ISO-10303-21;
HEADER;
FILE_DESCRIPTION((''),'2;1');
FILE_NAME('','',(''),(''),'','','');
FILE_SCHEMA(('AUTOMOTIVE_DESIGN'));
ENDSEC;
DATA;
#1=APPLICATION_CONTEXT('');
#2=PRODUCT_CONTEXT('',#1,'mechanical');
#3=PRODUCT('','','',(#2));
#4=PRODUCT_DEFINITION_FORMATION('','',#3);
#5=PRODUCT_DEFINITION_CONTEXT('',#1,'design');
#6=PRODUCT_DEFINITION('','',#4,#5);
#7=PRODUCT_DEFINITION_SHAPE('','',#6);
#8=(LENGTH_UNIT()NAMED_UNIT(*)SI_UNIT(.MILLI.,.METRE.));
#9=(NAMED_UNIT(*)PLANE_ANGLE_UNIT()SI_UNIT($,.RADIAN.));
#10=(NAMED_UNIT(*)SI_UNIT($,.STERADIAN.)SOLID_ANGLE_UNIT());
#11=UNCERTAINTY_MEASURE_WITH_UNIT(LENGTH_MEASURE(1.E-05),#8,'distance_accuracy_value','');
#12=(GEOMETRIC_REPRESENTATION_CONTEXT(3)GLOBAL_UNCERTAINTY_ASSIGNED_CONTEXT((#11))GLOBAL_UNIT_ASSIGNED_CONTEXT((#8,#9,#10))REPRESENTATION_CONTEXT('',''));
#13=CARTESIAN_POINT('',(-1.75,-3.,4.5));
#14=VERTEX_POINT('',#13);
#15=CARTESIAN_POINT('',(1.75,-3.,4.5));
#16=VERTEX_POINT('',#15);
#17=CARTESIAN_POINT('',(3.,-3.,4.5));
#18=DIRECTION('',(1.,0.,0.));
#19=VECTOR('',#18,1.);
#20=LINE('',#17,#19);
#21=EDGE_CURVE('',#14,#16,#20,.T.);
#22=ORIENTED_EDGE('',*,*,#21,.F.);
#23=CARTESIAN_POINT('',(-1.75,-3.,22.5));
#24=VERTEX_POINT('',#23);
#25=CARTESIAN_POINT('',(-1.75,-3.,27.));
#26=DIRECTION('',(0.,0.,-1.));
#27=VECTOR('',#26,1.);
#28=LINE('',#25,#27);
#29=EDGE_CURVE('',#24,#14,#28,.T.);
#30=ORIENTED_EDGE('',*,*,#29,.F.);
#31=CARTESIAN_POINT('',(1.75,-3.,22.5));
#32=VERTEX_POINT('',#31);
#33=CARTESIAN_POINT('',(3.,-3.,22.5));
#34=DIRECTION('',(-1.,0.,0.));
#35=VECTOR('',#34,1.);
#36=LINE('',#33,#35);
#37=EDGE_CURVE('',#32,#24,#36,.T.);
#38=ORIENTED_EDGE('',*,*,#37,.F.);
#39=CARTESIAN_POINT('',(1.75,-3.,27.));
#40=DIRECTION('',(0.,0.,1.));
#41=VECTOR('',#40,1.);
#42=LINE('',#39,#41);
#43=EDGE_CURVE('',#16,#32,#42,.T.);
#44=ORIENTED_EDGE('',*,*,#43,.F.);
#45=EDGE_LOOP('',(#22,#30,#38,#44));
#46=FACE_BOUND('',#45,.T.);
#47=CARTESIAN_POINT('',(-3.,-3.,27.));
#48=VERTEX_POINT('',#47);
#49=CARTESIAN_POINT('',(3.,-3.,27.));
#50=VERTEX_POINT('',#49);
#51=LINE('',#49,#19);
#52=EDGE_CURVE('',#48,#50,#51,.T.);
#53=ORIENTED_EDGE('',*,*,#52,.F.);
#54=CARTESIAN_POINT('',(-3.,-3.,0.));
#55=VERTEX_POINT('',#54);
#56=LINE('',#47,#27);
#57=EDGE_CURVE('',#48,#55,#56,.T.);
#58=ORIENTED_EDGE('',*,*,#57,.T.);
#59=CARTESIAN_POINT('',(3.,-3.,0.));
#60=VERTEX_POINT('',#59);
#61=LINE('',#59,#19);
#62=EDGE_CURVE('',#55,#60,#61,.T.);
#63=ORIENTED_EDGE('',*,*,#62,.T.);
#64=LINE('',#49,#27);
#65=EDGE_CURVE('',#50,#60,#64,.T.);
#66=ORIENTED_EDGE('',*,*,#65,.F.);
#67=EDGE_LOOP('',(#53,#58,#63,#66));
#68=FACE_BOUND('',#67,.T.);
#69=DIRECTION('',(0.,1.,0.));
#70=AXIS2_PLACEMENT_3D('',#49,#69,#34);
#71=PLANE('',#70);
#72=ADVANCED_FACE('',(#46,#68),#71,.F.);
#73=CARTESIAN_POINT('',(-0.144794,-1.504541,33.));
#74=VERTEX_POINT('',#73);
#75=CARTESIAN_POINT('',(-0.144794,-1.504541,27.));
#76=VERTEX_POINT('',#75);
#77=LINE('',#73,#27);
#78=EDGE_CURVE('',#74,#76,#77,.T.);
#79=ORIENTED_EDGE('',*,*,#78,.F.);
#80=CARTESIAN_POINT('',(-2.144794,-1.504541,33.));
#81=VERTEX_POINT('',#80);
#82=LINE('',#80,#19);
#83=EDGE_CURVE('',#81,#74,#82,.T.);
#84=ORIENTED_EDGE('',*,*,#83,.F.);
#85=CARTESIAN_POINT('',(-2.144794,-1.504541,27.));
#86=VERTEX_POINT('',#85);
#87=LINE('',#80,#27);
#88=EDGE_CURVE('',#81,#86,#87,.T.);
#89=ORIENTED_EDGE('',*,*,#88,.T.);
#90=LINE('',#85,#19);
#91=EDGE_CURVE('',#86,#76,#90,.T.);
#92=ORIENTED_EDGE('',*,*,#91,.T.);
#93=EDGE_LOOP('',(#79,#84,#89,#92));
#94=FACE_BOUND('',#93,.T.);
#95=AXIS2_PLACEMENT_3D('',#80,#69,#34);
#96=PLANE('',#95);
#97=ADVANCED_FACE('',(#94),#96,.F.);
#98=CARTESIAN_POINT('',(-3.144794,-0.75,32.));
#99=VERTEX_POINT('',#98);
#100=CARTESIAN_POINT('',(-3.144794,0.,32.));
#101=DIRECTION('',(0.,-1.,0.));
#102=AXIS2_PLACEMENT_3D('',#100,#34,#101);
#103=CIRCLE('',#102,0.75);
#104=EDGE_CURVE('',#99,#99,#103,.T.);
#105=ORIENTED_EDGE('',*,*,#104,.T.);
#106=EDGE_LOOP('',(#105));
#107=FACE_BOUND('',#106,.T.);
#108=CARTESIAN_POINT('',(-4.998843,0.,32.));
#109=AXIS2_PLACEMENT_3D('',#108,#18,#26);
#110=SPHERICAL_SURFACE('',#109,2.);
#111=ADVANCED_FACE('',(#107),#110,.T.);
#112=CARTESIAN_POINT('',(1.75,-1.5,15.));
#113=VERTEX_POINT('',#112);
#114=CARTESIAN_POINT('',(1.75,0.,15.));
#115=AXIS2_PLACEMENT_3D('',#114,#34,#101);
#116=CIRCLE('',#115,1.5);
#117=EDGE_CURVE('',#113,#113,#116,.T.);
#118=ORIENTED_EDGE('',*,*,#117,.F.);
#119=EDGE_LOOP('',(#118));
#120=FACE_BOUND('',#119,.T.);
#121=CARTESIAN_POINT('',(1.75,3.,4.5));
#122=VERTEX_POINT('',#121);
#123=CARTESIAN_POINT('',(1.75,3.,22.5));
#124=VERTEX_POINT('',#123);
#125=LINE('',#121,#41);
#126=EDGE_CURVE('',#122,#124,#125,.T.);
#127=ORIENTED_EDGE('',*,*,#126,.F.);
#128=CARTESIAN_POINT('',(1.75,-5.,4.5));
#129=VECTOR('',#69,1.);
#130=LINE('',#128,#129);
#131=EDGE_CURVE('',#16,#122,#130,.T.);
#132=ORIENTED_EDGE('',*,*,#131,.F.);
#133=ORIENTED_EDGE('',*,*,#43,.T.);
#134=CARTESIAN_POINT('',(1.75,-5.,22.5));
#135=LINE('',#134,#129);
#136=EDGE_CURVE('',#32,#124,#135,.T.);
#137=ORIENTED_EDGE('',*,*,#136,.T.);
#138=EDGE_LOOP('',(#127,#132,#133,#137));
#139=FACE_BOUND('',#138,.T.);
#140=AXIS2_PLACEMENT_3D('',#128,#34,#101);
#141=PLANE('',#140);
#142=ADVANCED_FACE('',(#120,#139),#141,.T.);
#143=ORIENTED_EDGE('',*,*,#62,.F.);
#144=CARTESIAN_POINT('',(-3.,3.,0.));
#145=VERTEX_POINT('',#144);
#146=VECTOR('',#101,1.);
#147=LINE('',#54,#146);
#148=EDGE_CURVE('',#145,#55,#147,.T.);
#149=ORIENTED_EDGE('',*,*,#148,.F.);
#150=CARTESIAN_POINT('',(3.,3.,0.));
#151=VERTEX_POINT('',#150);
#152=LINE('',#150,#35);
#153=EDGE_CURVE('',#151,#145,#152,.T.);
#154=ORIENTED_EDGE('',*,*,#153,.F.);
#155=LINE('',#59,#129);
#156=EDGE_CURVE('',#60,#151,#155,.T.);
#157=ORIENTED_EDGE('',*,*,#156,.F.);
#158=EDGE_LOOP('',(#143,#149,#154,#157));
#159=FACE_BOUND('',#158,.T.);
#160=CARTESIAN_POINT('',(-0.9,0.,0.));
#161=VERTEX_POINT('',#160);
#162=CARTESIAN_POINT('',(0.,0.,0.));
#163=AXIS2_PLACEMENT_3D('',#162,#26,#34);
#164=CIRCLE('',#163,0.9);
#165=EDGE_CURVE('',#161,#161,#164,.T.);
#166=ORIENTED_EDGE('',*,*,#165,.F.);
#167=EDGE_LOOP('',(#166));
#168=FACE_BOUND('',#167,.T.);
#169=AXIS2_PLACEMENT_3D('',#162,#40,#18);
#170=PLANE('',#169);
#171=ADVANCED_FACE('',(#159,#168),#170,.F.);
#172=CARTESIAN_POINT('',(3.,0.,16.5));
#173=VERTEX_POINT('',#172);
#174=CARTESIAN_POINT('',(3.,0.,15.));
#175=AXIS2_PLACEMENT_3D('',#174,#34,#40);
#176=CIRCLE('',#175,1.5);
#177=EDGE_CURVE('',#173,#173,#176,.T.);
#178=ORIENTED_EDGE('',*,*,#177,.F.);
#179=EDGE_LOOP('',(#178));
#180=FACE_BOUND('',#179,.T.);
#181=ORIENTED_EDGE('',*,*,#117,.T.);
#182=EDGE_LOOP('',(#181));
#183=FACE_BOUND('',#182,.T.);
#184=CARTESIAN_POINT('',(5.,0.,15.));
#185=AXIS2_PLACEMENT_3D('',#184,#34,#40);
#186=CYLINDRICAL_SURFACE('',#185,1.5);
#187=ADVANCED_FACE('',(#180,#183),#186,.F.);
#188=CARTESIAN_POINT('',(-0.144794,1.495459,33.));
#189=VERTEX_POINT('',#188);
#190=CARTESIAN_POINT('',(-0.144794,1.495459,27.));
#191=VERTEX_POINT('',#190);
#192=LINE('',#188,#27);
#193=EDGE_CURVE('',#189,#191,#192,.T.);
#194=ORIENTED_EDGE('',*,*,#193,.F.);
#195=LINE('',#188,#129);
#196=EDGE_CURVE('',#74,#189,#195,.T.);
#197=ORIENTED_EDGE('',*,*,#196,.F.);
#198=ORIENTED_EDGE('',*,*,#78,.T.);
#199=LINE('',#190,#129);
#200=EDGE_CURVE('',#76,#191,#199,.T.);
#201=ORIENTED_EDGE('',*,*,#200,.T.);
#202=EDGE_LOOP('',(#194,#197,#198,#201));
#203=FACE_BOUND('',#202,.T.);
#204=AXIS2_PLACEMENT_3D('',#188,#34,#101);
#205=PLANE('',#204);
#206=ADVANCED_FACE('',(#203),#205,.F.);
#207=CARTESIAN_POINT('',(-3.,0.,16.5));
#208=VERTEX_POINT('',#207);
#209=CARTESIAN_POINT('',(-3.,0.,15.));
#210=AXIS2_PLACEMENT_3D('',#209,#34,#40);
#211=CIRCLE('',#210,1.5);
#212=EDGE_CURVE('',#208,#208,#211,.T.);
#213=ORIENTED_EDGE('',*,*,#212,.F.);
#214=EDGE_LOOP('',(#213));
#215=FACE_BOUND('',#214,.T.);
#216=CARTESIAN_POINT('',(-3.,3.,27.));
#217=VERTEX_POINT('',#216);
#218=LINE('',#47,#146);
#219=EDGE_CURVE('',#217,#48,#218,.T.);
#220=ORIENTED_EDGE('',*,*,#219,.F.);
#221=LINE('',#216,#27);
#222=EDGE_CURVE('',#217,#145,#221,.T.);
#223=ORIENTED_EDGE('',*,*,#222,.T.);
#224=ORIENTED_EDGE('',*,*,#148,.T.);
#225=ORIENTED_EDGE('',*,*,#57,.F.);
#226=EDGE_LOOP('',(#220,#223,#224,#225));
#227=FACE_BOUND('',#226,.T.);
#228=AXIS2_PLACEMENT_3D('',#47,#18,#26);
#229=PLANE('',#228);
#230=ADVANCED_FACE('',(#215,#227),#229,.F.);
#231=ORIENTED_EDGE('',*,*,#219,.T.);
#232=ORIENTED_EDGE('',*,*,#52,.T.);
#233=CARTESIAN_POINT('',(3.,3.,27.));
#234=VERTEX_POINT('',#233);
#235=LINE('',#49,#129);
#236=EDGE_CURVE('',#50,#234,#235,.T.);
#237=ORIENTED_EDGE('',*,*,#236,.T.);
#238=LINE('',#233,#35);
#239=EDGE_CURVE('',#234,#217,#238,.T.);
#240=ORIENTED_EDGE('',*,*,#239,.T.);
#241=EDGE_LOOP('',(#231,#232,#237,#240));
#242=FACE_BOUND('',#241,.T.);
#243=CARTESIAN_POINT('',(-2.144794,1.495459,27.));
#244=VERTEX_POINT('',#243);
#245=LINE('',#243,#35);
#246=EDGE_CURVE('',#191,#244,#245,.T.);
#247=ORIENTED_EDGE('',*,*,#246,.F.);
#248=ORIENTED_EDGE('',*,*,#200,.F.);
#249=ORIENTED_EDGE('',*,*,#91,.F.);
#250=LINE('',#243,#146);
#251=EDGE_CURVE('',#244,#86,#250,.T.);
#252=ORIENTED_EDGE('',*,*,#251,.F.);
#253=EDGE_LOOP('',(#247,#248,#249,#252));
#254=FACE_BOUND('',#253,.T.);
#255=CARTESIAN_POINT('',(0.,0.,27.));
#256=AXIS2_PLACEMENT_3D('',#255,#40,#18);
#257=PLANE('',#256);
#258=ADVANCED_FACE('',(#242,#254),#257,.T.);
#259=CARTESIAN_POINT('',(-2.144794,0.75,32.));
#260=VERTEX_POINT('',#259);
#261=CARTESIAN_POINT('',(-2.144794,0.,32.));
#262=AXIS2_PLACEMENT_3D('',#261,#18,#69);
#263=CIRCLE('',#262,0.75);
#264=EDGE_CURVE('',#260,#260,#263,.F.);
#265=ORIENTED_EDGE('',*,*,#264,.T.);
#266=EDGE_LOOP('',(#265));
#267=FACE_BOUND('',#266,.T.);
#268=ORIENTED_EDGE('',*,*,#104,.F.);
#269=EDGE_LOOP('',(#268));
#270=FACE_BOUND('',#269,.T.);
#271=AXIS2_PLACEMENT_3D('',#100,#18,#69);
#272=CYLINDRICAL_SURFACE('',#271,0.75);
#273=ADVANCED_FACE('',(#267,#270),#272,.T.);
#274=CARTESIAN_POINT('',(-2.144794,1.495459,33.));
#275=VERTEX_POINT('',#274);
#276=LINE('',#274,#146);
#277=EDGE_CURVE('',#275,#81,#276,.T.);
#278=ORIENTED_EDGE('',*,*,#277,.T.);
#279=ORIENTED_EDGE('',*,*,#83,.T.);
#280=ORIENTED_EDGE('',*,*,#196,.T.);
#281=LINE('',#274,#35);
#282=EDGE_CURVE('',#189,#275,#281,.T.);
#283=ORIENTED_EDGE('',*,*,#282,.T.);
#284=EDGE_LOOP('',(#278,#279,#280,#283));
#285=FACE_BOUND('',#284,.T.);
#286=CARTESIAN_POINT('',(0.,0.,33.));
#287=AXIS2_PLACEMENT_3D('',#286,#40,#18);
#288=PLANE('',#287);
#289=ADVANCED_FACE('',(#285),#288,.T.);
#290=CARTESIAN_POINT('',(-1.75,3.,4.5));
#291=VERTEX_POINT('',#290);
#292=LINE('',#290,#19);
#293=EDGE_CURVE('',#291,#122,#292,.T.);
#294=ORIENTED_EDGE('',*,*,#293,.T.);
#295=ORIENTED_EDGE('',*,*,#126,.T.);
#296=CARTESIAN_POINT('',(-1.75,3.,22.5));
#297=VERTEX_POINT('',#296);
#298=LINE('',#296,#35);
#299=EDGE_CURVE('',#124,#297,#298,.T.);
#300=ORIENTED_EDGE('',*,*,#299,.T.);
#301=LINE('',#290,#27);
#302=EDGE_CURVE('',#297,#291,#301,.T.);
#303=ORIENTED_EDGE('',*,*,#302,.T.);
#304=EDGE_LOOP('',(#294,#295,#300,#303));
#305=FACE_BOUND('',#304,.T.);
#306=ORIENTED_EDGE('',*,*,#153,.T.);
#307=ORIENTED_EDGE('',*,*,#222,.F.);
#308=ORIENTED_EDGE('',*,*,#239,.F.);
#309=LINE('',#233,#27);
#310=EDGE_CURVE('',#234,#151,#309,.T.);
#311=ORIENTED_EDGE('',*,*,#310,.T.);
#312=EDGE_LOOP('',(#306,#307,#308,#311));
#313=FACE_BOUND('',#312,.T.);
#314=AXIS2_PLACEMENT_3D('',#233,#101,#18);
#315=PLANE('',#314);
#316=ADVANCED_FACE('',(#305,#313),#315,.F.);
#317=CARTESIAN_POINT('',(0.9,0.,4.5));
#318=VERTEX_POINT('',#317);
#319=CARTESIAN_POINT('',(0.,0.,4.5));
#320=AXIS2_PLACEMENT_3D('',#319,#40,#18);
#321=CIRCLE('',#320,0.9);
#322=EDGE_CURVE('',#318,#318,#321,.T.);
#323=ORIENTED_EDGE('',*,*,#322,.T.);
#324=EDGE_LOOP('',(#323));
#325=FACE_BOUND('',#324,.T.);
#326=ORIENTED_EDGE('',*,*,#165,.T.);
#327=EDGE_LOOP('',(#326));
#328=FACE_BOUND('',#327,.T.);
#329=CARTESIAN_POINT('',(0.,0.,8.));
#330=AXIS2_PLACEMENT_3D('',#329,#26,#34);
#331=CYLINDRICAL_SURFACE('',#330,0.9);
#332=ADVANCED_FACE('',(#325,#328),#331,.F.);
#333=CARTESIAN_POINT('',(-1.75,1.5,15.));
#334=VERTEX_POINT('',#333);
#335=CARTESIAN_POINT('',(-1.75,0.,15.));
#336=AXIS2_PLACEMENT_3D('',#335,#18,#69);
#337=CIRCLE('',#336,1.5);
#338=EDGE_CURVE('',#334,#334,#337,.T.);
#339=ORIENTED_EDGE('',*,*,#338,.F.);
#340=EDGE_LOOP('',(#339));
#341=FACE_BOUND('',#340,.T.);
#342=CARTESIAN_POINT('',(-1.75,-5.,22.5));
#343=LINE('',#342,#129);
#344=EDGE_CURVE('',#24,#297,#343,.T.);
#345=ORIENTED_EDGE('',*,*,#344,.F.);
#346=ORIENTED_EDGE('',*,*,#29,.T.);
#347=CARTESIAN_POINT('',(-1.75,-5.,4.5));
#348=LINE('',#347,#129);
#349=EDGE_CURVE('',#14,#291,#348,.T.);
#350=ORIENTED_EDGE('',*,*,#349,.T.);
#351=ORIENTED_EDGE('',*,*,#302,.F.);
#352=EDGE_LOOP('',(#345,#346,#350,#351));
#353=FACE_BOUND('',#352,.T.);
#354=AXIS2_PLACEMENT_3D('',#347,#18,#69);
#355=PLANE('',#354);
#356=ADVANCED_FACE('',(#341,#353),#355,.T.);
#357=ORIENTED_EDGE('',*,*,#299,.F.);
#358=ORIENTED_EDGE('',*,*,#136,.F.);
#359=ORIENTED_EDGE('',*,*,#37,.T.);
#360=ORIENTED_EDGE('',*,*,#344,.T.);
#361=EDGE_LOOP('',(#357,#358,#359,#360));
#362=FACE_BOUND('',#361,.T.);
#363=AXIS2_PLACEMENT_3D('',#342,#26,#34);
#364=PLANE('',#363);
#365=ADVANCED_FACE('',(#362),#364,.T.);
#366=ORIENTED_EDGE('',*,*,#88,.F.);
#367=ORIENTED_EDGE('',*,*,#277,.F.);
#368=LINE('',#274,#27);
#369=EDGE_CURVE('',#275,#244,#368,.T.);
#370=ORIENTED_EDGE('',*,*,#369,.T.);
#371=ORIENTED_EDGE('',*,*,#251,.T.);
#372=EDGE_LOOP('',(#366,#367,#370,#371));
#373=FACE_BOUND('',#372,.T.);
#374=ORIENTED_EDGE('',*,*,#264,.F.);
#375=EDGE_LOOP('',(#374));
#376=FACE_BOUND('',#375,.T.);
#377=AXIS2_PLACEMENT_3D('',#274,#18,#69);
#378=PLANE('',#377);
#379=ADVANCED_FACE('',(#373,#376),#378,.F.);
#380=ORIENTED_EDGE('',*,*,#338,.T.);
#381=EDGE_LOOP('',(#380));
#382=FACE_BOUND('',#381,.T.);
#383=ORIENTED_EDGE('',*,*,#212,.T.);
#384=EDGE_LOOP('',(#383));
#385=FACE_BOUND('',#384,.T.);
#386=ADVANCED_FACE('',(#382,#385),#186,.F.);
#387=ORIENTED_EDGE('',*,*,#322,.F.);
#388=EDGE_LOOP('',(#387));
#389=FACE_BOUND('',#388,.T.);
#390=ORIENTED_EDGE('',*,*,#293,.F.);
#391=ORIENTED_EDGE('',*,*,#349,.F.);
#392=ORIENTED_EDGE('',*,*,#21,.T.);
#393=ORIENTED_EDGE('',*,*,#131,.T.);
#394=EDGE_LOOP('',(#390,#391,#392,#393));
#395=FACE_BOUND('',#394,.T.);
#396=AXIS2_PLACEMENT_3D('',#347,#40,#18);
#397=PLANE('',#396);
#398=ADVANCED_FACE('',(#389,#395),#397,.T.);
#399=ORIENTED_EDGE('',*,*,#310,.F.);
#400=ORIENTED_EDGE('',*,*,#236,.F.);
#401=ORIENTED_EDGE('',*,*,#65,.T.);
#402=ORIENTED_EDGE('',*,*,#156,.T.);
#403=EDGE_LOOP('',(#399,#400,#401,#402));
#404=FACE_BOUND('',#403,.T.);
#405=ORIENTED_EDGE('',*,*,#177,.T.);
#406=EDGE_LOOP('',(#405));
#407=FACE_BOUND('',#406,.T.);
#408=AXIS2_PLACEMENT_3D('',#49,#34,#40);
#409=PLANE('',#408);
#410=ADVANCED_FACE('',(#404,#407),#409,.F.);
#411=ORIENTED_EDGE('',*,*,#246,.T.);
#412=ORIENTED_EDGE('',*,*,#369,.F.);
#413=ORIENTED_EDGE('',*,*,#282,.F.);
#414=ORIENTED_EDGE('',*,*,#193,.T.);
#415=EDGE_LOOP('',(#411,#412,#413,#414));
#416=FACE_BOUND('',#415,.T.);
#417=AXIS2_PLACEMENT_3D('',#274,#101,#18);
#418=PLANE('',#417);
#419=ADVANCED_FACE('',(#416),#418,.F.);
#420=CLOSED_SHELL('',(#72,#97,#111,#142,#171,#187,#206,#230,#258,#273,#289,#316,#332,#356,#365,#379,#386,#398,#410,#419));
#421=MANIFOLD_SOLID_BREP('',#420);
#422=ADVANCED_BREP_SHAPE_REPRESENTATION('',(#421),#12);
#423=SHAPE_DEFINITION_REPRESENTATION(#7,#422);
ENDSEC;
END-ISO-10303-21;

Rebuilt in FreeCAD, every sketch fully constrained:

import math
import FreeCAD as App
import Part
import Sketcher


def add_polygon(sketch, points):
    """Adds a closed chain of lines whose ends are joined by coincident constraints."""
    first, n = sketch.GeometryCount, len(points)
    for a, b in zip(points, points[1:] + points[:1]):
        sketch.addGeometry(Part.LineSegment(App.Vector(*a, 0), App.Vector(*b, 0)), False)
    for i in range(n):
        sketch.addConstraint(Sketcher.Constraint("Coincident", first + i, 2, first + (i + 1) % n, 1))

doc = App.newDocument("Part")
body = doc.addObject("PartDesign::Body", "Body")

sketch1 = doc.addObject("Sketcher::SketchObject", "Sketch")
body.addObject(sketch1)
sketch1.AttachmentSupport = (doc.XY_Plane, [""])
sketch1.MapMode = "FlatFace"
add_polygon(sketch1, [(-3, 3), (-3, -3), (3, -3), (3, 3)])
sketch1.addConstraint([
    Sketcher.Constraint("Vertical", 0),
    Sketcher.Constraint("Horizontal", 1),
    Sketcher.Constraint("Vertical", 2),
    Sketcher.Constraint("Horizontal", 3),
    Sketcher.Constraint("Symmetric", 0, 2, 2, 2, -1, 1),
    Sketcher.Constraint("Equal", 3, 0),
    Sketcher.Constraint("DistanceX", 1, 1, 1, 2, 6.0),
])
pad1 = doc.addObject("PartDesign::Pad", "Pad")
body.addObject(pad1)
pad1.Profile = sketch1
pad1.Length = 27

sketch2 = doc.addObject("Sketcher::SketchObject", "Sketch001")
body.addObject(sketch2)
sketch2.AttachmentSupport = (doc.XY_Plane, [""])
sketch2.MapMode = "FlatFace"
sketch2.AttachmentOffset = App.Placement(App.Vector(0, 0, 27), App.Rotation())
add_polygon(sketch2, [(-2.1, 1.5), (-2.1, -1.5), (-0.1, -1.5), (-0.1, 1.5)])
sketch2.addConstraint([
    Sketcher.Constraint("Vertical", 0),
    Sketcher.Constraint("Horizontal", 1),
    Sketcher.Constraint("Vertical", 2),
    Sketcher.Constraint("Horizontal", 3),
    Sketcher.Constraint("DistanceX", 1, 1, 1, 2, 2.0),
    Sketcher.Constraint("DistanceY", 0, 2, 0, 1, 3.0),
    Sketcher.Constraint("DistanceY", 0, 2, -1, 1, 1.504541),
    Sketcher.Constraint("DistanceX", 0, 2, -1, 1, 2.144794),
])
pad2 = doc.addObject("PartDesign::Pad", "Pad001")
body.addObject(pad2)
pad2.Profile = sketch2
pad2.Length = 6

sketch3 = doc.addObject("Sketcher::SketchObject", "Sketch002")
body.addObject(sketch3)
sketch3.AttachmentSupport = (doc.YZ_Plane, [""])
sketch3.MapMode = "FlatFace"
sketch3.AttachmentOffset = App.Placement(App.Vector(0, 0, -2.144794), App.Rotation())
sketch3.addGeometry(Part.Circle(App.Vector(0, 32, 0), App.Vector(0, 0, 1), 0.8), False)
sketch3.addConstraint([
    Sketcher.Constraint("PointOnObject", 0, 3, -2),
    Sketcher.Constraint("Diameter", 0, 1.5),
    Sketcher.Constraint("DistanceY", -1, 1, 0, 3, 32.0),
])
pad3 = doc.addObject("PartDesign::Pad", "Pad002")
body.addObject(pad3)
pad3.Profile = sketch3
pad3.Length = 1
pad3.Reversed = True

sketch4 = doc.addObject("Sketcher::SketchObject", "Sketch003")
body.addObject(sketch4)
sketch4.AttachmentSupport = (doc.XZ_Plane, [""])
sketch4.MapMode = "FlatFace"
sketch4.addGeometry([
    Part.LineSegment(App.Vector(-7, 32, 0), App.Vector(-3.1, 32, 0)),
    Part.LineSegment(App.Vector(-3.1, 32, 0), App.Vector(-3.1, 31.2, 0)),
    Part.ArcOfCircle(Part.Circle(App.Vector(-5, 32, 0), App.Vector(0, 0, 1), 2), math.radians(180), math.radians(338)),
], False)
sketch4.addGeometry(Part.LineSegment(App.Vector(-3.1, 32, 0), App.Vector(-7, 32, 0)), True)
sketch4.addConstraint([
    Sketcher.Constraint("Coincident", 0, 2, 1, 1),
    Sketcher.Constraint("Coincident", 1, 2, 2, 2),
    Sketcher.Constraint("Coincident", 2, 1, 0, 1),
    Sketcher.Constraint("Horizontal", 0),
    Sketcher.Constraint("Vertical", 1),
    Sketcher.Constraint("Horizontal", 3),
    Sketcher.Constraint("Coincident", 3, 1, 0, 2),
    Sketcher.Constraint("Horizontal", 2, 3, 0, 2),
    Sketcher.Constraint("Equal", 0, 3),
    Sketcher.Constraint("Radius", 2, 2.0),
    Sketcher.Constraint("DistanceY", -1, 1, 2, 3, 32.0),
    Sketcher.Constraint("DistanceY", 1, 2, 1, 1, 0.75),
    Sketcher.Constraint("DistanceX", 2, 3, -1, 1, 4.998843),
])
revolution = doc.addObject("PartDesign::Revolution", "Revolution")
body.addObject(revolution)
revolution.Profile = sketch4
revolution.ReferenceAxis = (sketch4, ["Axis0"])
revolution.Angle = 360

sketch5 = doc.addObject("Sketcher::SketchObject", "Sketch004")
body.addObject(sketch5)
sketch5.AttachmentSupport = (doc.XZ_Plane, [""])
sketch5.MapMode = "FlatFace"
sketch5.AttachmentOffset = App.Placement(App.Vector(0, 0, -3), App.Rotation())
add_polygon(sketch5, [(-1.8, 4.5), (1.8, 4.5), (1.8, 22.5), (-1.8, 22.5)])
sketch5.addConstraint([
    Sketcher.Constraint("Horizontal", 0),
    Sketcher.Constraint("Vertical", 1),
    Sketcher.Constraint("Horizontal", 2),
    Sketcher.Constraint("Vertical", 3),
    Sketcher.Constraint("DistanceY", 1, 1, 1, 2, 18.0),
    Sketcher.Constraint("DistanceX", 0, 1, 0, 2, 3.5),
    Sketcher.Constraint("DistanceY", -1, 1, 0, 2, 4.5),
    Sketcher.Constraint("DistanceX", -1, 1, 0, 2, 1.75),
])
pocket1 = doc.addObject("PartDesign::Pocket", "Pocket")
body.addObject(pocket1)
pocket1.Profile = sketch5
pocket1.Length = 8
pocket1.Reversed = True

sketch6 = doc.addObject("Sketcher::SketchObject", "Sketch005")
body.addObject(sketch6)
sketch6.AttachmentSupport = (doc.YZ_Plane, [""])
sketch6.MapMode = "FlatFace"
sketch6.AttachmentOffset = App.Placement(App.Vector(0, 0, -3), App.Rotation())
sketch6.addGeometry(Part.Circle(App.Vector(0, 15, 0), App.Vector(0, 0, 1), 1.5), False)
sketch6.addConstraint([
    Sketcher.Constraint("PointOnObject", 0, 3, -2),
    Sketcher.Constraint("Diameter", 0, 3.0),
    Sketcher.Constraint("DistanceY", -1, 1, 0, 3, 15.0),
])
pocket2 = doc.addObject("PartDesign::Pocket", "Pocket001")
body.addObject(pocket2)
pocket2.Profile = sketch6
pocket2.Length = 8
pocket2.Reversed = True

sketch7 = doc.addObject("Sketcher::SketchObject", "Sketch006")
body.addObject(sketch7)
sketch7.AttachmentSupport = (doc.XY_Plane, [""])
sketch7.MapMode = "FlatFace"
sketch7.addGeometry(Part.Circle(App.Vector(0, 0, 0), App.Vector(0, 0, 1), 0.9), False)
sketch7.addConstraint([
    Sketcher.Constraint("Coincident", 0, 3, -1, 1),
    Sketcher.Constraint("Diameter", 0, 1.8),
])
pocket3 = doc.addObject("PartDesign::Pocket", "Pocket002")
body.addObject(pocket3)
pocket3.Profile = sketch7
pocket3.Length = 8
pocket3.Reversed = True

doc.recompute()
